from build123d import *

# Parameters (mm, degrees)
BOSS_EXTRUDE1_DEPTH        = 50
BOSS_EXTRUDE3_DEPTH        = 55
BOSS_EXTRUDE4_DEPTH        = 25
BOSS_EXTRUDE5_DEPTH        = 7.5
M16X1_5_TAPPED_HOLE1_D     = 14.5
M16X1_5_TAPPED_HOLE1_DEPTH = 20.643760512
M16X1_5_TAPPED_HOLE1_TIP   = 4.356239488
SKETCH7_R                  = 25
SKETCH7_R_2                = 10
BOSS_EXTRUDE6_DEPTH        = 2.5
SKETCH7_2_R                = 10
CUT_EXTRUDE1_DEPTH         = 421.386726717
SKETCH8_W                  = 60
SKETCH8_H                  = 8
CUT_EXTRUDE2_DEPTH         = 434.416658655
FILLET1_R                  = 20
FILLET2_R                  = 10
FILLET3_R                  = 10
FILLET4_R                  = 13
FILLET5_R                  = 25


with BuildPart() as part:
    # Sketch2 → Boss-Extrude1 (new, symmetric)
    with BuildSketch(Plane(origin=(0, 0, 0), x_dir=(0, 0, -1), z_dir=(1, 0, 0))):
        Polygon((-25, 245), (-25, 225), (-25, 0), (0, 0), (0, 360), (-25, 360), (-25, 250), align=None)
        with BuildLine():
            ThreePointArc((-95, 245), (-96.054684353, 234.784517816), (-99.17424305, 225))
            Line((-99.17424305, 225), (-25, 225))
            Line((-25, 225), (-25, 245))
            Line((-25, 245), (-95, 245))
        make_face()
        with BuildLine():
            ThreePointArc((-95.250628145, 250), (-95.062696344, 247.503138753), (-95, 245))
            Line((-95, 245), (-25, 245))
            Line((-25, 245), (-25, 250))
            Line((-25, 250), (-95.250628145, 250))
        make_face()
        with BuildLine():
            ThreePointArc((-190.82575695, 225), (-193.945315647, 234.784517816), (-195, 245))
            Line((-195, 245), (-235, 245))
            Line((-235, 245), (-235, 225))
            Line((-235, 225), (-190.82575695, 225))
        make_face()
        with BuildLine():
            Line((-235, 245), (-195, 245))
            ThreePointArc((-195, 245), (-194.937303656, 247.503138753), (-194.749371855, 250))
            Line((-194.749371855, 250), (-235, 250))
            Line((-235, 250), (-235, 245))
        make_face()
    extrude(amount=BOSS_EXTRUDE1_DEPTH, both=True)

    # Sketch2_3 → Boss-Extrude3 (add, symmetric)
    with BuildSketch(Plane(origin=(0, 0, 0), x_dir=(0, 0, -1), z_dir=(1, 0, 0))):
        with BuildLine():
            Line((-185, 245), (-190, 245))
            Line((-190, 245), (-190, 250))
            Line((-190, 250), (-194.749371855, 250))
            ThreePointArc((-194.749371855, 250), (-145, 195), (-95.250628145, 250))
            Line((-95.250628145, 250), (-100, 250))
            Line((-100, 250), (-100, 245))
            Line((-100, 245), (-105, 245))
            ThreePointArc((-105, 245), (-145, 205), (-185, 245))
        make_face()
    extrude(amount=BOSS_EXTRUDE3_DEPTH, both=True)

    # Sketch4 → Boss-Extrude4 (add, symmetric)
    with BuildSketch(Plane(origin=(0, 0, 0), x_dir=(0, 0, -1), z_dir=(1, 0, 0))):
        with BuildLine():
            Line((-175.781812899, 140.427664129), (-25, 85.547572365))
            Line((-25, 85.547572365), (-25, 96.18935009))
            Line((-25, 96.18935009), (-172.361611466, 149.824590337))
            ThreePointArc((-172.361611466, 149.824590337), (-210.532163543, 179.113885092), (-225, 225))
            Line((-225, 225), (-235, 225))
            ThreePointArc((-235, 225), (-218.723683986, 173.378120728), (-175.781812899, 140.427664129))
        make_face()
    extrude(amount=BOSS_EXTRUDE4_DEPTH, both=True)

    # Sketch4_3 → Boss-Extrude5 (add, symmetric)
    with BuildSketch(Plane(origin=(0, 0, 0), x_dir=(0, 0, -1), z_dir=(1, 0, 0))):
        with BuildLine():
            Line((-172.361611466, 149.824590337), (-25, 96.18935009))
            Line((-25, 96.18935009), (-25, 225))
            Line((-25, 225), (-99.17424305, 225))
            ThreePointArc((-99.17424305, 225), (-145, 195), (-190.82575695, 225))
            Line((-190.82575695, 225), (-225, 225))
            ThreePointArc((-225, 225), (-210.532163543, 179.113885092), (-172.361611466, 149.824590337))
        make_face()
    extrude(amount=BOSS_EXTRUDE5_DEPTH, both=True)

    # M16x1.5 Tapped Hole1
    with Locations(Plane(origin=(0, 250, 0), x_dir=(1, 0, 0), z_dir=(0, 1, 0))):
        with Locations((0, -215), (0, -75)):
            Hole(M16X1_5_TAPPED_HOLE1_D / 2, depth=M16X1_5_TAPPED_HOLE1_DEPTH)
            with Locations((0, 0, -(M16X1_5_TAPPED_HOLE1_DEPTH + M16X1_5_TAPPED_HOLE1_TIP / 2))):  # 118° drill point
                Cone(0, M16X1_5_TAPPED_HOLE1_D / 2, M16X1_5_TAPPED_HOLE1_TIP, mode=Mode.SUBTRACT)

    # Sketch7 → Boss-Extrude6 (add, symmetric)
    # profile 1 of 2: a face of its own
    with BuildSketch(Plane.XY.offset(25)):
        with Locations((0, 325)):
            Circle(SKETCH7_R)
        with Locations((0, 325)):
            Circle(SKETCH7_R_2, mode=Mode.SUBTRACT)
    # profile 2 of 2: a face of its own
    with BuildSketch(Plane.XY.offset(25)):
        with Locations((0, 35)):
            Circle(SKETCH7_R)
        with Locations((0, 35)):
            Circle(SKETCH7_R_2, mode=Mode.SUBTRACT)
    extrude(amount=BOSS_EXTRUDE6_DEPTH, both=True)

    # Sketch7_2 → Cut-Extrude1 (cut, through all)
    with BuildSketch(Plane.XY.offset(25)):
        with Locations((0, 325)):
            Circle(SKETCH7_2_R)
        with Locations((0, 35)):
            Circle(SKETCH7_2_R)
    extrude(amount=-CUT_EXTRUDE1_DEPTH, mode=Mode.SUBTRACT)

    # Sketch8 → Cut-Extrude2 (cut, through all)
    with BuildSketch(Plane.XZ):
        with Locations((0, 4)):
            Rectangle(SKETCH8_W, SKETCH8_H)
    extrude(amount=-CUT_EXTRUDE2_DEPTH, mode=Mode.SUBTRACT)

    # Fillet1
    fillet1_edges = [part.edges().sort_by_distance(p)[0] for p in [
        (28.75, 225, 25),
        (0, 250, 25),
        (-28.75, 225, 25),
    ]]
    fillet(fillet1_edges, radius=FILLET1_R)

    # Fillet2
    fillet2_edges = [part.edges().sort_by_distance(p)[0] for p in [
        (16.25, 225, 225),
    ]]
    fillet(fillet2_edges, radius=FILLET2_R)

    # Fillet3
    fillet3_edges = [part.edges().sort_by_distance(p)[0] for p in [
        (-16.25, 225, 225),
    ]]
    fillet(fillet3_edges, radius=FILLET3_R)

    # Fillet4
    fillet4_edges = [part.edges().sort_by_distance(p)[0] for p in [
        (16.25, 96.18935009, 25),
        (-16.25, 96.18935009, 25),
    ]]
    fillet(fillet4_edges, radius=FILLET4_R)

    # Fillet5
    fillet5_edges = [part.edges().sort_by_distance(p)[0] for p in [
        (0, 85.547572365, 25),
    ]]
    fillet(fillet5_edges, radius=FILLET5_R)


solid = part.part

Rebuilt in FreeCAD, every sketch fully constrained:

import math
import FreeCAD as App
import Part
import Sketcher

V = App.Vector
Q = App.Units.Quantity


def edges_at(feature, points):
    """Names of the edges that pass closest to the given points."""
    edges = feature.Shape.Edges
    near = lambda p: min(range(len(edges)), key=lambda i: edges[i].distToShape(Part.Vertex(*p))[0])
    return sorted({f"Edge{near(p) + 1}" for p in points})


def add_polygon(sketch, points):
    """Adds a closed chain of lines whose ends are joined by coincident constraints."""
    first, n = sketch.GeometryCount, len(points)
    for a, b in zip(points, points[1:] + points[:1]):
        sketch.addGeometry(Part.LineSegment(App.Vector(*a, 0), App.Vector(*b, 0)), False)
    for i in range(n):
        sketch.addConstraint(Sketcher.Constraint("Coincident", first + i, 2, first + (i + 1) % n, 1))

doc = App.newDocument("Part")
body = doc.addObject("PartDesign::Body", "Body")
body.AllowCompound = True

# Sketch on YZ plane
sketch1 = body.newObject("Sketcher::SketchObject", "Sketch")
sketch1.AttachmentSupport = (doc.getObject("YZ_Plane"), [""])
sketch1.MapMode = "FlatFace"
sketch1.addGeometry([
    Part.LineSegment(V(0, 25, 0), V(0, 0, 0)),  # 0
    Part.LineSegment(V(0, 0, 0), V(360, 0, 0)),  # 1
    Part.LineSegment(V(360, 0, 0), V(360, 25, 0)),  # 2
    Part.LineSegment(V(360, 25, 0), V(250, 25, 0)),  # 3
    Part.LineSegment(V(250, 25, 0), V(250, 95, 0)),  # 4
    Part.ArcOfCircle(Part.Circle(V(245, 145, 0), V(0, 0, 1), 50), math.radians(-90), math.radians(-84.26)),  # 5
    Part.ArcOfCircle(Part.Circle(V(245, 145, 0), V(0, 0, 1), 50), math.radians(-114), math.radians(-90)),  # 6
    Part.LineSegment(V(225, 99, 0), V(225, 25, 0)),  # 7
    Part.LineSegment(V(225, 25, 0), V(0, 25, 0)),  # 8
    Part.ArcOfCircle(Part.Circle(V(245, 145, 0), V(0, 0, 1), 50), math.radians(90), math.radians(114)),  # 9
    Part.ArcOfCircle(Part.Circle(V(245, 145, 0), V(0, 0, 1), 50), math.radians(84.26), math.radians(90)),  # 10
    Part.LineSegment(V(250, 195, 0), V(250, 235, 0)),  # 11
    Part.LineSegment(V(250, 235, 0), V(225, 235, 0)),  # 12
    Part.LineSegment(V(225, 235, 0), V(225, 191, 0)),  # 13
], False)
sketch1.addConstraint([
    Sketcher.Constraint("Coincident", 0, 2, 1, 1),
    Sketcher.Constraint("Coincident", 1, 2, 2, 1),
    Sketcher.Constraint("Coincident", 2, 2, 3, 1),
    Sketcher.Constraint("Coincident", 3, 2, 4, 1),
    Sketcher.Constraint("Coincident", 4, 2, 5, 2),
    Sketcher.Constraint("Tangent", 5, 1, 6, 2),
    Sketcher.Constraint("Coincident", 6, 1, 7, 1),
    Sketcher.Constraint("Coincident", 7, 2, 8, 1),
    Sketcher.Constraint("Coincident", 8, 2, 0, 1),
    Sketcher.Constraint("Tangent", 9, 1, 10, 2),
    Sketcher.Constraint("Coincident", 10, 1, 11, 1),
    Sketcher.Constraint("Coincident", 11, 2, 12, 1),
    Sketcher.Constraint("Coincident", 12, 2, 13, 1),
    Sketcher.Constraint("Coincident", 13, 2, 9, 2),
    Sketcher.Constraint("Vertical", 0),
    Sketcher.Constraint("Horizontal", 1),
    Sketcher.Constraint("Vertical", 2),
    Sketcher.Constraint("Horizontal", 3),
    Sketcher.Constraint("Vertical", 4),
    Sketcher.Constraint("Vertical", 7),
    Sketcher.Constraint("Horizontal", 8),
    Sketcher.Constraint("Vertical", 11),
    Sketcher.Constraint("Horizontal", 12),
    Sketcher.Constraint("Vertical", 13),
    Sketcher.Constraint("Coincident", 0, 2, -1, 1),
    Sketcher.Constraint("Coincident", 9, 3, 5, 3),
    Sketcher.Constraint("Equal", 5, 6),
    Sketcher.Constraint("Equal", 6, 9),
    Sketcher.Constraint("Equal", 9, 10),
    Sketcher.Constraint("Horizontal", 3, 2, 7, 2),
    Sketcher.Constraint("Vertical", 10, 3, 5, 1),
    Sketcher.Constraint("Vertical", 5, 1, 9, 1),
    Sketcher.Constraint("Vertical", 4, 2, 10, 1),
    Sketcher.Constraint("Vertical", 7, 2, 12, 2),
    Sketcher.Constraint("Equal", 12, 0),
    Sketcher.Constraint("Radius", 5, Q("49.999999 mm")),
    Sketcher.Constraint("DistanceX", 1, 1, 1, 2, Q("360 mm")),
    Sketcher.Constraint("DistanceX", 3, 2, 3, 1, Q("110 mm")),
    Sketcher.Constraint("DistanceX", 8, 2, 8, 1, Q("225 mm")),
    Sketcher.Constraint("DistanceX", -1, 1, 5, 3, Q("245 mm")),
    Sketcher.Constraint("DistanceY", -1, 1, 5, 3, Q("144.999999 mm")),
    Sketcher.Constraint("DistanceY", -1, 1, 11, 2, Q("235 mm")),
])
pad1 = body.newObject("PartDesign::Pad", "Pad")
pad1.Profile = sketch1
pad1.Length = 100
pad1.Midplane = True

# Sketch on YZ plane
sketch2 = body.newObject("Sketcher::SketchObject", "Sketch001")
sketch2.AttachmentSupport = (doc.getObject("YZ_Plane"), [""])
sketch2.MapMode = "FlatFace"
sketch2.addGeometry([
    Part.LineSegment(V(245, 185, 0), V(245, 190, 0)),  # 0
    Part.LineSegment(V(245, 190, 0), V(250, 190, 0)),  # 1
    Part.LineSegment(V(250, 190, 0), V(250, 194.7, 0)),  # 2
    Part.ArcOfCircle(Part.Circle(V(245, 145, 0), V(0, 0, 1), 50), math.radians(84), math.radians(276)),  # 3
    Part.LineSegment(V(250, 95.3, 0), V(250, 100, 0)),  # 4
    Part.LineSegment(V(250, 100, 0), V(245, 100, 0)),  # 5
    Part.LineSegment(V(245, 100, 0), V(245, 105, 0)),  # 6
    Part.ArcOfCircle(Part.Circle(V(245, 145, 0), V(0, 0, 1), 40), math.radians(90), math.radians(270)),  # 7
], False)
sketch2.addConstraint([
    Sketcher.Constraint("Coincident", 0, 2, 1, 1),
    Sketcher.Constraint("Coincident", 1, 2, 2, 1),
    Sketcher.Constraint("Coincident", 2, 2, 3, 1),
    Sketcher.Constraint("Coincident", 3, 2, 4, 1),
    Sketcher.Constraint("Coincident", 4, 2, 5, 1),
    Sketcher.Constraint("Coincident", 5, 2, 6, 1),
    Sketcher.Constraint("Coincident", 6, 2, 7, 2),
    Sketcher.Constraint("Coincident", 7, 1, 0, 1),
    Sketcher.Constraint("Vertical", 0),
    Sketcher.Constraint("Horizontal", 1),
    Sketcher.Constraint("Vertical", 2),
    Sketcher.Constraint("Vertical", 4),
    Sketcher.Constraint("Horizontal", 5),
    Sketcher.Constraint("Vertical", 6),
    Sketcher.Constraint("Coincident", 7, 3, 3, 3),
    Sketcher.Constraint("Vertical", 7, 3, 0, 2),
    Sketcher.Constraint("Vertical", 2, 2, 3, 2),
    Sketcher.Constraint("Vertical", 0, 2, 5, 2),
    Sketcher.Constraint("Equal", 5, 0),
    Sketcher.Constraint("Equal", 2, 4),
    Sketcher.Constraint("Radius", 3, Q("50 mm")),
    Sketcher.Constraint("Radius", 7, Q("40 mm")),
    Sketcher.Constraint("DistanceX", 1, 1, 1, 2, Q("5 mm")),
    Sketcher.Constraint("DistanceX", -1, 1, 3, 3, Q("245 mm")),
    Sketcher.Constraint("DistanceY", -1, 1, 3, 3, Q("145 mm")),
])
pad2 = body.newObject("PartDesign::Pad", "Pad001")
pad2.Profile = sketch2
pad2.Length = 110
pad2.Midplane = True

# Sketch on YZ plane
sketch3 = body.newObject("Sketcher::SketchObject", "Sketch002")
sketch3.AttachmentSupport = (doc.getObject("YZ_Plane"), [""])
sketch3.MapMode = "FlatFace"
sketch3.addGeometry([
    Part.LineSegment(V(140, 176, 0), V(86, 25, 0)),  # 0
    Part.LineSegment(V(86, 25, 0), V(96, 25, 0)),  # 1
    Part.LineSegment(V(96, 25, 0), V(150, 172, 0)),  # 2
    Part.ArcOfCircle(Part.Circle(V(225, 145, 0), V(0, 0, 1), 80), math.radians(90), math.radians(160)),  # 3
    Part.LineSegment(V(225, 225, 0), V(225, 235, 0)),  # 4
    Part.ArcOfCircle(Part.Circle(V(225, 145, 0), V(0, 0, 1), 90), math.radians(90), math.radians(160)),  # 5
], False)
sketch3.addConstraint([
    Sketcher.Constraint("Coincident", 0, 2, 1, 1),
    Sketcher.Constraint("Coincident", 1, 2, 2, 1),
    Sketcher.Constraint("Tangent", 2, 2, 3, 2),
    Sketcher.Constraint("Coincident", 3, 1, 4, 1),
    Sketcher.Constraint("Coincident", 4, 2, 5, 1),
    Sketcher.Constraint("Tangent", 5, 2, 0, 1),
    Sketcher.Constraint("Horizontal", 1),
    Sketcher.Constraint("Vertical", 4),
    Sketcher.Constraint("Coincident", 5, 3, 3, 3),
    Sketcher.Constraint("Parallel", 0, 2),
    Sketcher.Constraint("Vertical", 5, 3, 3, 1),
    Sketcher.Constraint("Radius", 3, Q("80 mm")),
    Sketcher.Constraint("Radius", 5, Q("90 mm")),
    Sketcher.Constraint("Angle", 0, Q("-110 deg")),
    Sketcher.Constraint("DistanceX", -1, 1, 3, 3, Q("225 mm")),
    Sketcher.Constraint("DistanceY", -1, 1, 3, 3, Q("145 mm")),
    Sketcher.Constraint("DistanceY", -1, 1, 0, 2, Q("25 mm")),
])
pad3 = body.newObject("PartDesign::Pad", "Pad002")
pad3.Profile = sketch3
pad3.Length = 50
pad3.Midplane = True

# Sketch on YZ plane
sketch4 = body.newObject("Sketcher::SketchObject", "Sketch003")
sketch4.AttachmentSupport = (doc.getObject("YZ_Plane"), [""])
sketch4.MapMode = "FlatFace"
sketch4.addGeometry([
    Part.LineSegment(V(150, 172, 0), V(96, 25, 0)),  # 0
    Part.LineSegment(V(96, 25, 0), V(225, 25, 0)),  # 1
    Part.LineSegment(V(225, 25, 0), V(225, 99, 0)),  # 2
    Part.ArcOfCircle(Part.Circle(V(245, 145, 0), V(0, 0, 1), 50), math.radians(114), math.radians(246)),  # 3
    Part.LineSegment(V(225, 191, 0), V(225, 225, 0)),  # 4
    Part.ArcOfCircle(Part.Circle(V(225, 145, 0), V(0, 0, 1), 80), math.radians(90), math.radians(160)),  # 5
], False)
sketch4.addConstraint([
    Sketcher.Constraint("Coincident", 0, 2, 1, 1),
    Sketcher.Constraint("Coincident", 1, 2, 2, 1),
    Sketcher.Constraint("Coincident", 2, 2, 3, 2),
    Sketcher.Constraint("Coincident", 3, 1, 4, 1),
    Sketcher.Constraint("Coincident", 4, 2, 5, 1),
    Sketcher.Constraint("Tangent", 5, 2, 0, 1),
    Sketcher.Constraint("Horizontal", 1),
    Sketcher.Constraint("Vertical", 2),
    Sketcher.Constraint("Vertical", 4),
    Sketcher.Constraint("Horizontal", 3, 3, 5, 3),
    Sketcher.Constraint("Vertical", 5, 3, 1, 2),
    Sketcher.Constraint("Vertical", 2, 2, 3, 1),
    Sketcher.Constraint("Radius", 3, Q("50 mm")),
    Sketcher.Constraint("Radius", 5, Q("80 mm")),
    Sketcher.Constraint("Angle", 0, Q("-110 deg")),
    Sketcher.Constraint("DistanceX", -1, 1, 3, 3, Q("245 mm")),
    Sketcher.Constraint("DistanceY", -1, 1, 3, 3, Q("145 mm")),
    Sketcher.Constraint("DistanceX", -1, 1, 5, 3, Q("225 mm")),
    Sketcher.Constraint("DistanceY", -1, 1, 0, 2, Q("25 mm")),
])
pad4 = body.newObject("PartDesign::Pad", "Pad003")
pad4.Profile = sketch4
pad4.Length = 15
pad4.Midplane = True

# Sketch on XZ plane
sketch5 = body.newObject("Sketcher::SketchObject", "Sketch004")
sketch5.AttachmentSupport = (doc.getObject("XZ_Plane"), [""])
sketch5.MapMode = "FlatFace"
sketch5.AttachmentOffset = App.Placement(V(0, 0, -250), App.Rotation())
sketch5.addGeometry([
    Part.Circle(V(0, 215, 0), V(0, 0, 1), 7),
    Part.Circle(V(0, 75, 0), V(0, 0, 1), 7),
], False)
sketch5.addConstraint([
    Sketcher.Constraint("Equal", 0, 1),
    Sketcher.Constraint("PointOnObject", 0, 3, -2),
    Sketcher.Constraint("PointOnObject", 1, 3, -2),
    Sketcher.Constraint("Diameter", 0, Q("14.5 mm")),
    Sketcher.Constraint("DistanceY", -1, 1, 0, 3, Q("215 mm")),
    Sketcher.Constraint("DistanceY", -1, 1, 1, 3, Q("75 mm")),
])
doc.recompute()
hole = body.newObject("PartDesign::Hole", "Hole")
hole.Profile = sketch5
hole.ThreadType = "None"
hole.Diameter = 14.5
hole.DepthType = "Dimension"
hole.Depth = 20.643761
hole.DrillPoint = "Angled"
hole.DrillPointAngle = 118
hole.Reversed = True

# Sketch on XY plane
sketch6 = body.newObject("Sketcher::SketchObject", "Sketch005")
sketch6.AttachmentSupport = (doc.getObject("XY_Plane"), [""])
sketch6.MapMode = "FlatFace"
sketch6.AttachmentOffset = App.Placement(V(0, 0, 25), App.Rotation())
sketch6.addGeometry([
    Part.Circle(V(0, 325, 0), V(0, 0, 1), 25),
    Part.Circle(V(0, 325, 0), V(0, 0, 1), 10),
    Part.Circle(V(0, 35, 0), V(0, 0, 1), 25),
    Part.Circle(V(0, 35, 0), V(0, 0, 1), 10),
], False)
sketch6.addConstraint([
    Sketcher.Constraint("Coincident", 1, 3, 0, 3),
    Sketcher.Constraint("Coincident", 3, 3, 2, 3),
    Sketcher.Constraint("Equal", 0, 2),
    Sketcher.Constraint("Equal", 1, 3),
    Sketcher.Constraint("PointOnObject", 0, 3, -2),
    Sketcher.Constraint("PointOnObject", 2, 3, -2),
    Sketcher.Constraint("Diameter", 0, Q("50 mm")),
    Sketcher.Constraint("Diameter", 1, Q("20 mm")),
    Sketcher.Constraint("DistanceY", -1, 1, 0, 3, Q("325 mm")),
    Sketcher.Constraint("DistanceY", -1, 1, 2, 3, Q("35 mm")),
])
pad5 = body.newObject("PartDesign::Pad", "Pad004")
pad5.Profile = sketch6
pad5.Length = 5
pad5.Midplane = True

# Sketch on XY plane
sketch7 = body.newObject("Sketcher::SketchObject", "Sketch006")
sketch7.AttachmentSupport = (doc.getObject("XY_Plane"), [""])
sketch7.MapMode = "FlatFace"
sketch7.AttachmentOffset = App.Placement(V(0, 0, 25), App.Rotation())
sketch7.addGeometry([
    Part.Circle(V(0, 325, 0), V(0, 0, 1), 10),
    Part.Circle(V(0, 35, 0), V(0, 0, 1), 10),
], False)
sketch7.addConstraint([
    Sketcher.Constraint("Equal", 0, 1),
    Sketcher.Constraint("PointOnObject", 0, 3, -2),
    Sketcher.Constraint("PointOnObject", 1, 3, -2),
    Sketcher.Constraint("Diameter", 0, Q("20 mm")),
    Sketcher.Constraint("DistanceY", -1, 1, 0, 3, Q("325 mm")),
    Sketcher.Constraint("DistanceY", -1, 1, 1, 3, Q("35 mm")),
])
pocket1 = body.newObject("PartDesign::Pocket", "Pocket")
pocket1.Profile = sketch7
pocket1.Type = "ThroughAll"

# Sketch on XZ plane
sketch8 = body.newObject("Sketcher::SketchObject", "Sketch007")
sketch8.AttachmentSupport = (doc.getObject("XZ_Plane"), [""])
sketch8.MapMode = "FlatFace"
add_polygon(sketch8, [(-30, 8), (-30, 0), (30, 0), (30, 8)])  # lines 0-3
sketch8.addConstraint([
    Sketcher.Constraint("Vertical", 0),
    Sketcher.Constraint("Horizontal", 1),
    Sketcher.Constraint("Vertical", 2),
    Sketcher.Constraint("Horizontal", 3),
    Sketcher.Constraint("Symmetric", 0, 2, 1, 2, -1, 1),
    Sketcher.Constraint("DistanceX", 1, 1, 1, 2, Q("60 mm")),
    Sketcher.Constraint("DistanceY", 0, 2, 0, 1, Q("8 mm")),
])
pocket2 = body.newObject("PartDesign::Pocket", "Pocket001")
pocket2.Profile = sketch8
pocket2.Type = "ThroughAll"
doc.recompute()

fillet = body.newObject("PartDesign::Fillet", "Fillet")
fillet.Base = (pocket2, edges_at(pocket2, [(28.75, 225, 25), (0, 250, 25), (-28.75, 225, 25)]))
fillet.Radius = 20
doc.recompute()

fillet2 = body.newObject("PartDesign::Fillet", "Fillet001")
fillet2.Base = (fillet, edges_at(fillet, [(16.25, 225, 225)]))
fillet2.Radius = 10
doc.recompute()

fillet3 = body.newObject("PartDesign::Fillet", "Fillet002")
fillet3.Base = (fillet2, edges_at(fillet2, [(-16.25, 225, 225)]))
fillet3.Radius = 10
doc.recompute()

fillet4 = body.newObject("PartDesign::Fillet", "Fillet003")
fillet4.Base = (fillet3, edges_at(fillet3, [(16.25, 96.189, 25), (-16.25, 96.189, 25)]))
fillet4.Radius = 13
doc.recompute()

fillet5 = body.newObject("PartDesign::Fillet", "Fillet004")
fillet5.Base = (fillet4, edges_at(fillet4, [(0, 85.548, 25)]))
fillet5.Radius = 25

doc.recompute()
